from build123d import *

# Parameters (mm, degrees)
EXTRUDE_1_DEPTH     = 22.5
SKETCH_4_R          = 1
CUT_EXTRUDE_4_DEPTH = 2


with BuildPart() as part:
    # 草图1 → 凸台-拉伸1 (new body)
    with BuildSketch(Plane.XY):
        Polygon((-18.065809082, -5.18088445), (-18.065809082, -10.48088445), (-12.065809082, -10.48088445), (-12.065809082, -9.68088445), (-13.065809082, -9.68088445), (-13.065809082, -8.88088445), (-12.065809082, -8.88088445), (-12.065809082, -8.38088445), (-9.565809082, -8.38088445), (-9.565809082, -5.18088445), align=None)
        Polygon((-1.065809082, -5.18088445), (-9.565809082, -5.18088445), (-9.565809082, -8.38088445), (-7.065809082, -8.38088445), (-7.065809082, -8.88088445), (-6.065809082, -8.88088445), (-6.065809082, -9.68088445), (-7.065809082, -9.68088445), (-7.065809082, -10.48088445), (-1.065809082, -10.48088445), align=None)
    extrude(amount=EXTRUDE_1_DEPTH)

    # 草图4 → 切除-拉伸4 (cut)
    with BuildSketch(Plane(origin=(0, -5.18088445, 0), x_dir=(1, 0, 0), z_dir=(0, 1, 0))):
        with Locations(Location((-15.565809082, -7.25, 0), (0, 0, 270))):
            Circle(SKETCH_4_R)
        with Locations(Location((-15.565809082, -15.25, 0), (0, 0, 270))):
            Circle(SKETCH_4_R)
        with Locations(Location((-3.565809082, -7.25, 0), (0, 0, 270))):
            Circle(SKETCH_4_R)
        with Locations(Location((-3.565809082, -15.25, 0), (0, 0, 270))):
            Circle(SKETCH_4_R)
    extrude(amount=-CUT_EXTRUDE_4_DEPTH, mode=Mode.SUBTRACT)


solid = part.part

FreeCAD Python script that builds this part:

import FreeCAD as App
import Part
import Sketcher


def add_polygon(sketch, points):
    """Adds a closed chain of lines whose ends are joined by coincident constraints."""
    first, n = sketch.GeometryCount, len(points)
    for a, b in zip(points, points[1:] + points[:1]):
        sketch.addGeometry(Part.LineSegment(App.Vector(*a, 0), App.Vector(*b, 0)), False)
    for i in range(n):
        sketch.addConstraint(Sketcher.Constraint("Coincident", first + i, 2, first + (i + 1) % n, 1))

doc = App.newDocument("Part")
body = doc.addObject("PartDesign::Body", "Body")

# Sketch on XY plane
sketch1 = doc.addObject("Sketcher::SketchObject", "Sketch")
body.addObject(sketch1)
sketch1.AttachmentSupport = (doc.XY_Plane, [""])
sketch1.MapMode = "FlatFace"
add_polygon(sketch1, [(-18.1, -5.2), (-18.1, -10.5), (-12.1, -10.5), (-12.1, -9.7), (-13.1, -9.7), (-13.1, -8.9), (-12.1, -8.9), (-12.1, -8.4), (-7.1, -8.4), (-7.1, -8.9), (-6.1, -8.9), (-6.1, -9.7), (-7.1, -9.7), (-7.1, -10.5), (-1.1, -10.5), (-1.1, -5.2)])  # lines 0-15
sketch1.addConstraint([
    Sketcher.Constraint("Vertical", 0),
    Sketcher.Constraint("Horizontal", 1),
    Sketcher.Constraint("Vertical", 2),
    Sketcher.Constraint("Horizontal", 3),
    Sketcher.Constraint("Vertical", 4),
    Sketcher.Constraint("Horizontal", 5),
    Sketcher.Constraint("Vertical", 6),
    Sketcher.Constraint("Horizontal", 7),
    Sketcher.Constraint("Vertical", 8),
    Sketcher.Constraint("Horizontal", 9),
    Sketcher.Constraint("Vertical", 10),
    Sketcher.Constraint("Horizontal", 11),
    Sketcher.Constraint("Vertical", 12),
    Sketcher.Constraint("Horizontal", 13),
    Sketcher.Constraint("Vertical", 14),
    Sketcher.Constraint("Horizontal", 15),
    Sketcher.Constraint("Horizontal", 5, 2, 8, 2),
    Sketcher.Constraint("Horizontal", 3, 2, 10, 2),
    Sketcher.Constraint("Horizontal", 1, 2, 12, 2),
    Sketcher.Constraint("Vertical", 2, 2, 5, 2),
    Sketcher.Constraint("Vertical", 8, 2, 11, 2),
    Sketcher.Constraint("Equal", 5, 9),
    Sketcher.Constraint("Equal", 1, 13),
    Sketcher.Constraint("Equal", 2, 4),
    Sketcher.Constraint("DistanceX", 1, 1, 1, 2, 6.0),
    Sketcher.Constraint("DistanceX", 3, 2, 3, 1, 1.0),
    Sketcher.Constraint("DistanceX", 7, 1, 7, 2, 5.0),
    Sketcher.Constraint("DistanceY", 0, 2, 0, 1, 5.3),
    Sketcher.Constraint("DistanceY", 2, 1, 2, 2, 0.8),
    Sketcher.Constraint("DistanceY", 6, 1, 6, 2, 0.5),
    Sketcher.Constraint("DistanceX", 0, 2, -1, 1, 18.065809),
    Sketcher.Constraint("DistanceY", 0, 2, -1, 1, 10.480884),
])
pad1 = doc.addObject("PartDesign::Pad", "Pad")
body.addObject(pad1)
pad1.Profile = sketch1
pad1.Length = 22.5

# Sketch on XZ plane
sketch2 = doc.addObject("Sketcher::SketchObject", "Sketch001")
body.addObject(sketch2)
sketch2.AttachmentSupport = (doc.XZ_Plane, [""])
sketch2.MapMode = "FlatFace"
sketch2.AttachmentOffset = App.Placement(App.Vector(0, 0, 5.180884), App.Rotation())
sketch2.addGeometry([
    Part.Circle(App.Vector(-15.6, 7.2, 0), App.Vector(0, 0, 1), 1),
    Part.Circle(App.Vector(-15.6, 15.2, 0), App.Vector(0, 0, 1), 1),
    Part.Circle(App.Vector(-3.6, 7.2, 0), App.Vector(0, 0, 1), 1),
    Part.Circle(App.Vector(-3.6, 15.2, 0), App.Vector(0, 0, 1), 1),
], False)
sketch2.addConstraint([
    Sketcher.Constraint("Equal", 0, 1),
    Sketcher.Constraint("Equal", 1, 2),
    Sketcher.Constraint("Equal", 2, 3),
    Sketcher.Constraint("Horizontal", 0, 3, 2, 3),
    Sketcher.Constraint("Horizontal", 1, 3, 3, 3),
    Sketcher.Constraint("Vertical", 0, 3, 1, 3),
    Sketcher.Constraint("Vertical", 2, 3, 3, 3),
    Sketcher.Constraint("Diameter", 0, 2.0),
    Sketcher.Constraint("DistanceY", 0, 3, 1, 3, 8.0),
    Sketcher.Constraint("DistanceX", 0, 3, 2, 3, 12.0),
    Sketcher.Constraint("DistanceY", -1, 1, 0, 3, 7.25),
    Sketcher.Constraint("DistanceX", 0, 3, -1, 1, 15.565809),
])
pocket1 = doc.addObject("PartDesign::Pocket", "Pocket")
body.addObject(pocket1)
pocket1.Profile = sketch2
pocket1.Length = 2
pocket1.Reversed = True

doc.recompute()
